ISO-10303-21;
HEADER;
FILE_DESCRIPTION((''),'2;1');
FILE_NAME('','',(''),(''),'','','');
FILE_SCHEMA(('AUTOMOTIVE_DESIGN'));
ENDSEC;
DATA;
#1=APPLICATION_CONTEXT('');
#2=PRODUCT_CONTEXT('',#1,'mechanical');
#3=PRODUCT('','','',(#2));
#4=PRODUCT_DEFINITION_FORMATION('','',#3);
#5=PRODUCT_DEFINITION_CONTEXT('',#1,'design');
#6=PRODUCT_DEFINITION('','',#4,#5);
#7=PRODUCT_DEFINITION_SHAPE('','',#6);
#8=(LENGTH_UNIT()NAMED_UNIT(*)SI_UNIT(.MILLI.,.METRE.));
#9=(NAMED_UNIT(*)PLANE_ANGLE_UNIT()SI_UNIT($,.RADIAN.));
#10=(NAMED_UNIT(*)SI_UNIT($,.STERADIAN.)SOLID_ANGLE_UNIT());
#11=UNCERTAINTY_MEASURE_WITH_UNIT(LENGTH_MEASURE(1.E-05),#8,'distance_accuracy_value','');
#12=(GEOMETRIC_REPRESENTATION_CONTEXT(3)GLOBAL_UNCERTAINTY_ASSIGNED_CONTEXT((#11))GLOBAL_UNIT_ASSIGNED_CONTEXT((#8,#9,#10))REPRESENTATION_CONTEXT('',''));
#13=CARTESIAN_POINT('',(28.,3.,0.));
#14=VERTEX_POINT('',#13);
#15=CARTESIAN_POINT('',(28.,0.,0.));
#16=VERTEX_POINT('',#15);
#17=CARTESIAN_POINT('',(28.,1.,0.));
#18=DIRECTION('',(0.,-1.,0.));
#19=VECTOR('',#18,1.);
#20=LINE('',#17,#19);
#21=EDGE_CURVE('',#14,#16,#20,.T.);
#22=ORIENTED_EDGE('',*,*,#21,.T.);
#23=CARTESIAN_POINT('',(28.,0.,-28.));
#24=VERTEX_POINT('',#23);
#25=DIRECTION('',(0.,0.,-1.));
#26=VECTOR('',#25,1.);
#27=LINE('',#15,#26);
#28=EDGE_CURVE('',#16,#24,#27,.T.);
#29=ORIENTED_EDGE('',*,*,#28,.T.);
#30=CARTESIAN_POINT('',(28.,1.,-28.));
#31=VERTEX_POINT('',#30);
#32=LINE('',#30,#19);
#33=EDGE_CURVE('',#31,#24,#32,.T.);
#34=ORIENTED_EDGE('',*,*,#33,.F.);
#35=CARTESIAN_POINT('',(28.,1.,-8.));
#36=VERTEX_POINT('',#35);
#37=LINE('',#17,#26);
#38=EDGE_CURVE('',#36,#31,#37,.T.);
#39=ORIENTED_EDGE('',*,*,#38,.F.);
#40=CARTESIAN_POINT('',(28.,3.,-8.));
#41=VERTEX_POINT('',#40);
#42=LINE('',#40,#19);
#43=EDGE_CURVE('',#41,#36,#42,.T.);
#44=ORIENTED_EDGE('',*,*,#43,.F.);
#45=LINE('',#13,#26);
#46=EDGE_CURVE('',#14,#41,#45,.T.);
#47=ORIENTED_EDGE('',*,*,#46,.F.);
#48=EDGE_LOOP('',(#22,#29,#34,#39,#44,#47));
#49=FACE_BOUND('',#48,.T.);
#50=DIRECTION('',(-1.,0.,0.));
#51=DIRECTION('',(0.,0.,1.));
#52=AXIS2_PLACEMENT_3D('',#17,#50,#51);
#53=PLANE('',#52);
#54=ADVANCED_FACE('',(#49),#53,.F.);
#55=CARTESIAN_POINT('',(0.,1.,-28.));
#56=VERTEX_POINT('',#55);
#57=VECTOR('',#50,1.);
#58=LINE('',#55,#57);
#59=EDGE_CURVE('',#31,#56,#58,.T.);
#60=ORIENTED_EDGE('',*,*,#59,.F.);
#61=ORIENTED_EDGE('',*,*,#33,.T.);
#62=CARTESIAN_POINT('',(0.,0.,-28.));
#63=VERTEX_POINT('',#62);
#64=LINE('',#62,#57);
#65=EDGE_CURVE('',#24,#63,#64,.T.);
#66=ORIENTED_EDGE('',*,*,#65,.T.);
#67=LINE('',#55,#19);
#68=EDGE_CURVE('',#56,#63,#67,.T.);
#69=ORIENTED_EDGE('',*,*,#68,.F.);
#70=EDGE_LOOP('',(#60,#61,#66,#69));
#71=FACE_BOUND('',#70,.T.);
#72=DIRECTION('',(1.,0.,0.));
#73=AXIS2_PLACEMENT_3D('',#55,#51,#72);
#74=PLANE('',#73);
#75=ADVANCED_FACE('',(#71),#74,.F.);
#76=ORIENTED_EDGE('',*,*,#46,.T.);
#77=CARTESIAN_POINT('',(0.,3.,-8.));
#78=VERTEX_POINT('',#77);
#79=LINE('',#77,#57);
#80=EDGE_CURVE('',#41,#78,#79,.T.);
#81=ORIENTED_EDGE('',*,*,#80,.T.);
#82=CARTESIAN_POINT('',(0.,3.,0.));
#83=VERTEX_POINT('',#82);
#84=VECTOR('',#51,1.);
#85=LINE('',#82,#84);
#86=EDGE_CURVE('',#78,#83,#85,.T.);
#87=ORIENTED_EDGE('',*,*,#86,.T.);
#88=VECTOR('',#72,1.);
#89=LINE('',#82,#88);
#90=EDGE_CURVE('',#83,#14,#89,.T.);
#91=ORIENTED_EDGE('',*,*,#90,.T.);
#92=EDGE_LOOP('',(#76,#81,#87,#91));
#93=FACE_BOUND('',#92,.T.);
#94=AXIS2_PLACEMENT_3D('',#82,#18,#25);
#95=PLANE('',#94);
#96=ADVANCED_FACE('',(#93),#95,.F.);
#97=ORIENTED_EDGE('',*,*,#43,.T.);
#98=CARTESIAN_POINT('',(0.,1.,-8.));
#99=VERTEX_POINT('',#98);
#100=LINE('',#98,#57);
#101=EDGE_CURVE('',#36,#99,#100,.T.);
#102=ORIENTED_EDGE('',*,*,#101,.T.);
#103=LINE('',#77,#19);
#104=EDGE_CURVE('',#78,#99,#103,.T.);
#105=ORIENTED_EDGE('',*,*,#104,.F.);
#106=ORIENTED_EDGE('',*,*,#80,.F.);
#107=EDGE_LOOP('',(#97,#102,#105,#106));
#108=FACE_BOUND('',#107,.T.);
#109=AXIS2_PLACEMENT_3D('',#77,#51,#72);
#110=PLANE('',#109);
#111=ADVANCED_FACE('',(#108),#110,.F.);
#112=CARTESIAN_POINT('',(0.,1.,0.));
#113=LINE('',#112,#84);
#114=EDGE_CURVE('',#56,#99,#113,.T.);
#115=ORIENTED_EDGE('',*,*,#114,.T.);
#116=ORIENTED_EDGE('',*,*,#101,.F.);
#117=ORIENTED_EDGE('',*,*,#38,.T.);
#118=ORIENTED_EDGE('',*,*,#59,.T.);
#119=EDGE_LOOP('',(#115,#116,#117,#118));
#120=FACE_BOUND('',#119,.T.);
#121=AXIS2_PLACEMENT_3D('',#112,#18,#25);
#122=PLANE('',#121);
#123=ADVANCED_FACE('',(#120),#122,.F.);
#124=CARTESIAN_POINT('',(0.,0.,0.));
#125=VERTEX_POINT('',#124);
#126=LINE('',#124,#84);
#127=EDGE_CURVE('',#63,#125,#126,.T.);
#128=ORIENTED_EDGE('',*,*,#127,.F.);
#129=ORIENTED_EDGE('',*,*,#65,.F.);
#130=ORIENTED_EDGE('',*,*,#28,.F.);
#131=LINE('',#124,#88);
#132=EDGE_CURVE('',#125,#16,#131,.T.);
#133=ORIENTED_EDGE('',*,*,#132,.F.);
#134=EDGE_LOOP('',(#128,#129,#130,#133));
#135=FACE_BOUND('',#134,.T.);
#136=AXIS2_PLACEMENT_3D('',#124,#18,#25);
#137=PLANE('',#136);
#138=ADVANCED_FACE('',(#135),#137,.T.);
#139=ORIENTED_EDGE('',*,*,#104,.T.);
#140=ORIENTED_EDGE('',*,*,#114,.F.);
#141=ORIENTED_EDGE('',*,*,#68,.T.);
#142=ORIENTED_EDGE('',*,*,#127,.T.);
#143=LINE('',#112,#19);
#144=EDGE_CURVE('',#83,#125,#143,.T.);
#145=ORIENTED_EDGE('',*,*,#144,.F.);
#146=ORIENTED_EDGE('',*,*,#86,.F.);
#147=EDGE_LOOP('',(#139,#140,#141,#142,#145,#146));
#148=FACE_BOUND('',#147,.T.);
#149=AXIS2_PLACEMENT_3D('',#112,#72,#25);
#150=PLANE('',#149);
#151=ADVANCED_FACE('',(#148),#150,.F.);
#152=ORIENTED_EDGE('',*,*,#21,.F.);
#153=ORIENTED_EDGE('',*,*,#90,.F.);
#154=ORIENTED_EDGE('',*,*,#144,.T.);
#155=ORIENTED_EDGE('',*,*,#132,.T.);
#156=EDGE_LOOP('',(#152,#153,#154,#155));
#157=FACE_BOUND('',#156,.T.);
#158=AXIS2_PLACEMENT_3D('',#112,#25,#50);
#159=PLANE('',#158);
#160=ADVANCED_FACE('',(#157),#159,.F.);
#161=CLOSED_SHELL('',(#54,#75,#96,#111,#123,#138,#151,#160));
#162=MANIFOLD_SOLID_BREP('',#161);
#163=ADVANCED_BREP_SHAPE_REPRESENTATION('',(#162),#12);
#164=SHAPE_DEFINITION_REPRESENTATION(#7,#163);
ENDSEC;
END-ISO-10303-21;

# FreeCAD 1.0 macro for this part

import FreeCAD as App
import Part
import Sketcher

V = App.Vector


def add_polygon(sketch, points):
    """Adds a closed chain of lines whose ends are joined by coincident constraints."""
    first, n = sketch.GeometryCount, len(points)
    for a, b in zip(points, points[1:] + points[:1]):
        sketch.addGeometry(Part.LineSegment(App.Vector(*a, 0), App.Vector(*b, 0)), False)
    for i in range(n):
        sketch.addConstraint(Sketcher.Constraint("Coincident", first + i, 2, first + (i + 1) % n, 1))

doc = App.newDocument("Part")
body = doc.addObject("PartDesign::Body", "Body")

# Sketch on XZ plane
sketch1 = body.newObject("Sketcher::SketchObject", "Sketch")
sketch1.AttachmentSupport = (doc.getObject("XZ_Plane"), [""])
sketch1.MapMode = "FlatFace"
add_polygon(sketch1, [(0, -28), (0, 0), (28, 0), (28, -28)])  # lines 0-3
sketch1.addConstraint([
    Sketcher.Constraint("Vertical", 0),
    Sketcher.Constraint("Horizontal", 1),
    Sketcher.Constraint("Vertical", 2),
    Sketcher.Constraint("Horizontal", 3),
    Sketcher.Constraint("Coincident", 0, 2, -1, 1),
    Sketcher.Constraint("Equal", 3, 0),
    Sketcher.Constraint("DistanceX", 1, 1, 1, 2, 28.0),
])
pad1 = body.newObject("PartDesign::Pad", "Pad")
pad1.Profile = sketch1
pad1.Length = 1
pad1.Reversed = True

# Sketch on XZ plane
sketch2 = body.newObject("Sketcher::SketchObject", "Sketch001")
sketch2.AttachmentSupport = (doc.getObject("XZ_Plane"), [""])
sketch2.MapMode = "FlatFace"
sketch2.AttachmentOffset = App.Placement(V(0, 0, -1), App.Rotation())
add_polygon(sketch2, [(0, -8), (0, 0), (28, 0), (28, -8)])  # lines 0-3
sketch2.addConstraint([
    Sketcher.Constraint("Vertical", 0),
    Sketcher.Constraint("Horizontal", 1),
    Sketcher.Constraint("Vertical", 2),
    Sketcher.Constraint("Horizontal", 3),
    Sketcher.Constraint("Coincident", 0, 2, -1, 1),
    Sketcher.Constraint("DistanceX", 1, 1, 1, 2, 28.0),
    Sketcher.Constraint("DistanceY", 0, 1, 0, 2, 8.0),
])
pad2 = body.newObject("PartDesign::Pad", "Pad001")
pad2.Profile = sketch2
pad2.Length = 2
pad2.Reversed = True

doc.recompute()
